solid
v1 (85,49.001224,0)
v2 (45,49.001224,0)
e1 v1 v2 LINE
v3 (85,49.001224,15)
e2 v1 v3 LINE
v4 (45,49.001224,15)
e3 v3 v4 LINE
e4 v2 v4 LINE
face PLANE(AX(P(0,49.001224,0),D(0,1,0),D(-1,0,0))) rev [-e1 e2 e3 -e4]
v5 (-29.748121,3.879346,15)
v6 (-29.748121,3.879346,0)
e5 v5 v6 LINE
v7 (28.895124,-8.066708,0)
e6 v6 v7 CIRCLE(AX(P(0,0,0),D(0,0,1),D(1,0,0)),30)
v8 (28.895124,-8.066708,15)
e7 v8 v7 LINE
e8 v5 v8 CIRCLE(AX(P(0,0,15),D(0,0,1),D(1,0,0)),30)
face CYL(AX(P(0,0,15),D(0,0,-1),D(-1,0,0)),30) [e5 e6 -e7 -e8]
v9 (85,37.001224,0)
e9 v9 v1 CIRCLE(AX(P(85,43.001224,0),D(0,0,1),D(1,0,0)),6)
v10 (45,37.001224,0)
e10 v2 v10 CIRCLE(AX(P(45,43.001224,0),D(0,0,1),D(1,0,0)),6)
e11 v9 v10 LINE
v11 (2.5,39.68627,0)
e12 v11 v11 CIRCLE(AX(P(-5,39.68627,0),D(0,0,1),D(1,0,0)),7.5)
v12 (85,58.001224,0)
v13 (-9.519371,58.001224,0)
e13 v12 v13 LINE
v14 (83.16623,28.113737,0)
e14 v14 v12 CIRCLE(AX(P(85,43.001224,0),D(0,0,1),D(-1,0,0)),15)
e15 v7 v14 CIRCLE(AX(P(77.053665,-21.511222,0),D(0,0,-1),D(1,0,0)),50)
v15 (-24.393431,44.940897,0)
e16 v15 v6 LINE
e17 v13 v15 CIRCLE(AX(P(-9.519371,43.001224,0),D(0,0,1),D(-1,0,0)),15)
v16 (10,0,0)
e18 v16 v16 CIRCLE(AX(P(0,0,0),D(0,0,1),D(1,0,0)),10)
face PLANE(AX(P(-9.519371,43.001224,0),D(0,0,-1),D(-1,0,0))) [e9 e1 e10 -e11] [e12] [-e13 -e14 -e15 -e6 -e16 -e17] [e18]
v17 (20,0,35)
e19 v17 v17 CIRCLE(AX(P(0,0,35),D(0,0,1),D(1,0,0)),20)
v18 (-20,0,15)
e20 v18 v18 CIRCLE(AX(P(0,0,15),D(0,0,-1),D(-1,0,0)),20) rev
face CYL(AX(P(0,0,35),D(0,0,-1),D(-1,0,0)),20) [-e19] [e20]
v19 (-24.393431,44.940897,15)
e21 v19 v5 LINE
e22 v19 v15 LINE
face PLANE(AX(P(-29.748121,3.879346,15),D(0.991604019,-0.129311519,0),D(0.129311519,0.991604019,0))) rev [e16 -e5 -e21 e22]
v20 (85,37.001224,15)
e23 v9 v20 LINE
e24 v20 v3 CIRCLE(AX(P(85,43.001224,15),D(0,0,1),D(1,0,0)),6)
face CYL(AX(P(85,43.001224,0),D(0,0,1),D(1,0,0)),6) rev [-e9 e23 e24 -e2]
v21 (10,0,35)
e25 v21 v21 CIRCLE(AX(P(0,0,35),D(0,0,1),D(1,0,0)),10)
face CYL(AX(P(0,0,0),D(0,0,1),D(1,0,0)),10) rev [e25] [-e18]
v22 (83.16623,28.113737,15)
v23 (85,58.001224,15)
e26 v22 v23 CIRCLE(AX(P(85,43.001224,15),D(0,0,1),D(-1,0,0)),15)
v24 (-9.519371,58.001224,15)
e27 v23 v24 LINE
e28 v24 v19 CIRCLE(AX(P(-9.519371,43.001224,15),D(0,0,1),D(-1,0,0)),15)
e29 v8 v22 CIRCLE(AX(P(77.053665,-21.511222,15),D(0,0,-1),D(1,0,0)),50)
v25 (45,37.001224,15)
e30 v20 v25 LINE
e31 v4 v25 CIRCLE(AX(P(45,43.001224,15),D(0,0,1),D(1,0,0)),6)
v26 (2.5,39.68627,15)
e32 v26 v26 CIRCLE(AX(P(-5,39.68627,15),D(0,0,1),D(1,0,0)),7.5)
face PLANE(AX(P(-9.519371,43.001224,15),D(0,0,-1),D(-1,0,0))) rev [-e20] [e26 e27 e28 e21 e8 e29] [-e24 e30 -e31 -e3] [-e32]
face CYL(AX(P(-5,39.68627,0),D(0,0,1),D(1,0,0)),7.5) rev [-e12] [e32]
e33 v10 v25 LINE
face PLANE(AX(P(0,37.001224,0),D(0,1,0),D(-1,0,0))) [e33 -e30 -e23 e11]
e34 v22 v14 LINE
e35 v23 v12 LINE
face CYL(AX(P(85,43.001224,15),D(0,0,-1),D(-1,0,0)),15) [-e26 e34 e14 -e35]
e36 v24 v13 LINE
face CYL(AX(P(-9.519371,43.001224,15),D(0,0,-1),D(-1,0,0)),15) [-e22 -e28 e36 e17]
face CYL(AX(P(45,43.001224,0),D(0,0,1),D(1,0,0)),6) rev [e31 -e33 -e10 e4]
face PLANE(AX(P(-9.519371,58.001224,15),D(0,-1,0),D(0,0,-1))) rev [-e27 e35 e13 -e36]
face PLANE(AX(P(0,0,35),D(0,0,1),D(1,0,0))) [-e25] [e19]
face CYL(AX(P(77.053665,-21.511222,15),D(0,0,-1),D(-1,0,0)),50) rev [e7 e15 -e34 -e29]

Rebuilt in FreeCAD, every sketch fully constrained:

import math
import FreeCAD as App
import Part
import Sketcher

V = App.Vector
Q = App.Units.Quantity

doc = App.newDocument("Part")
body = doc.addObject("PartDesign::Body", "Body")

# Sketch on XY plane
sketch1 = body.newObject("Sketcher::SketchObject", "Sketch")
sketch1.AttachmentSupport = (doc.getObject("XY_Plane"), [""])
sketch1.MapMode = "FlatFace"
sketch1.addGeometry([
    Part.LineSegment(V(-24.393431, 44.940897, 0), V(-29.748121, 3.879346, 0)),  # 0
    Part.ArcOfCircle(Part.Circle(V(0, 0, 0), V(0, 0, 1), 30), math.radians(172.570191), math.radians(344.401757)),  # 1
    Part.ArcOfCircle(Part.Circle(V(77.053665, -21.511222, 0), V(0, 0, 1), 50), math.radians(82.97795), math.radians(164.401757)),  # 2
    Part.ArcOfCircle(Part.Circle(V(85, 43.001224, 0), V(0, 0, 1), 15), math.radians(-97.02205), math.radians(90)),  # 3
    Part.LineSegment(V(85, 58.001224, 0), V(-9.519371, 58.001224, 0)),  # 4
    Part.ArcOfCircle(Part.Circle(V(-9.519371, 43.001224, 0), V(0, 0, 1), 15), math.radians(90), math.radians(172.570191)),  # 5
], False)
sketch1.addConstraint([
    Sketcher.Constraint("Coincident", 0, 2, 1, 1),
    Sketcher.Constraint("Coincident", 1, 2, 2, 2),
    Sketcher.Constraint("Coincident", 2, 1, 3, 1),
    Sketcher.Constraint("Coincident", 3, 2, 4, 1),
    Sketcher.Constraint("Coincident", 4, 2, 5, 1),
    Sketcher.Constraint("Coincident", 5, 2, 0, 1),
    Sketcher.Constraint("Horizontal", 4),
    Sketcher.Constraint("Coincident", 1, 3, -1, 1),
    Sketcher.Constraint("Radius", 1, Q("30 mm")),
    Sketcher.Constraint("Radius", 2, Q("50 mm")),
    Sketcher.Constraint("Radius", 3, Q("15 mm")),
    Sketcher.Constraint("Radius", 5, Q("15 mm")),
    Sketcher.Constraint("DistanceX", -1, 1, 3, 3, Q("85 mm")),
    Sketcher.Constraint("DistanceX", -1, 1, 3, 2, Q("85 mm")),
    Sketcher.Constraint("DistanceX", 4, 2, 4, 1, Q("94.519371 mm")),
    Sketcher.Constraint("DistanceX", 5, 3, 2, 1, Q("92.685601 mm")),
    Sketcher.Constraint("DistanceX", 5, 3, -1, 1, Q("9.519371 mm")),
    Sketcher.Constraint("DistanceX", 0, 2, -1, 1, Q("29.748121 mm")),
    Sketcher.Constraint("DistanceY", 1, 2, -1, 1, Q("8.066708 mm")),
    Sketcher.Constraint("DistanceX", 5, 2, -1, 1, Q("24.393431 mm")),
    Sketcher.Constraint("DistanceY", 0, 2, 5, 3, Q("39.121879 mm")),
])
pad1 = body.newObject("PartDesign::Pad", "Pad")
pad1.Profile = sketch1
pad1.Length = 15

# Sketch on XY plane
sketch2 = body.newObject("Sketcher::SketchObject", "Sketch001")
sketch2.AttachmentSupport = (doc.getObject("XY_Plane"), [""])
sketch2.MapMode = "FlatFace"
sketch2.AttachmentOffset = App.Placement(V(0, 0, 15), App.Rotation())
sketch2.addGeometry([
    Part.Circle(V(-5, 40, 0), V(0, 0, 1), 8),  # 0
    Part.LineSegment(V(85, 49, 0), V(45, 49, 0)),  # 1
    Part.ArcOfCircle(Part.Circle(V(45, 43, 0), V(0, 0, 1), 6), math.radians(90), math.radians(270)),  # 2
    Part.LineSegment(V(45, 37, 0), V(85, 37, 0)),  # 3
    Part.ArcOfCircle(Part.Circle(V(85, 43, 0), V(0, 0, 1), 6), math.radians(-90), math.radians(90)),  # 4
], False)
sketch2.addConstraint([
    Sketcher.Constraint("Tangent", 1, 2, 2, 1),
    Sketcher.Constraint("Tangent", 2, 2, 3, 1),
    Sketcher.Constraint("Tangent", 3, 2, 4, 1),
    Sketcher.Constraint("Tangent", 4, 2, 1, 1),
    Sketcher.Constraint("Horizontal", 1),
    Sketcher.Constraint("Horizontal", 3),
    Sketcher.Constraint("Diameter", 0, Q("15 mm")),
    Sketcher.Constraint("Radius", 2, Q("6 mm")),
    Sketcher.Constraint("DistanceX", 1, 2, 1, 1, Q("40 mm")),
    Sketcher.Constraint("DistanceX", 0, 3, -1, 1, Q("5 mm")),
    Sketcher.Constraint("DistanceX", -1, 1, 2, 3, Q("45 mm")),
    Sketcher.Constraint("DistanceY", -1, 1, 0, 3, Q("39.68627 mm")),
    Sketcher.Constraint("DistanceY", -1, 1, 2, 3, Q("43.001224 mm")),
])
pocket1 = body.newObject("PartDesign::Pocket", "Pocket")
pocket1.Profile = sketch2
pocket1.Length = 15

# Sketch on XY plane
sketch3 = body.newObject("Sketcher::SketchObject", "Sketch002")
sketch3.AttachmentSupport = (doc.getObject("XY_Plane"), [""])
sketch3.MapMode = "FlatFace"
sketch3.AttachmentOffset = App.Placement(V(0, 0, 15), App.Rotation())
sketch3.addGeometry(Part.Circle(V(0, 0, 0), V(0, 0, 1), 20), False)
sketch3.addConstraint([
    Sketcher.Constraint("Coincident", 0, 3, -1, 1),
    Sketcher.Constraint("Diameter", 0, Q("40 mm")),
])
pad2 = body.newObject("PartDesign::Pad", "Pad001")
pad2.Profile = sketch3
pad2.Length = 20

# Sketch on XY plane
sketch4 = body.newObject("Sketcher::SketchObject", "Sketch003")
sketch4.AttachmentSupport = (doc.getObject("XY_Plane"), [""])
sketch4.MapMode = "FlatFace"
sketch4.AttachmentOffset = App.Placement(V(0, 0, 35), App.Rotation())
sketch4.addGeometry(Part.Circle(V(0, 0, 0), V(0, 0, 1), 10), False)
sketch4.addConstraint([
    Sketcher.Constraint("Coincident", 0, 3, -1, 1),
    Sketcher.Constraint("Diameter", 0, Q("20 mm")),
])
pocket2 = body.newObject("PartDesign::Pocket", "Pocket001")
pocket2.Profile = sketch4
pocket2.Length = 35

doc.recompute()
